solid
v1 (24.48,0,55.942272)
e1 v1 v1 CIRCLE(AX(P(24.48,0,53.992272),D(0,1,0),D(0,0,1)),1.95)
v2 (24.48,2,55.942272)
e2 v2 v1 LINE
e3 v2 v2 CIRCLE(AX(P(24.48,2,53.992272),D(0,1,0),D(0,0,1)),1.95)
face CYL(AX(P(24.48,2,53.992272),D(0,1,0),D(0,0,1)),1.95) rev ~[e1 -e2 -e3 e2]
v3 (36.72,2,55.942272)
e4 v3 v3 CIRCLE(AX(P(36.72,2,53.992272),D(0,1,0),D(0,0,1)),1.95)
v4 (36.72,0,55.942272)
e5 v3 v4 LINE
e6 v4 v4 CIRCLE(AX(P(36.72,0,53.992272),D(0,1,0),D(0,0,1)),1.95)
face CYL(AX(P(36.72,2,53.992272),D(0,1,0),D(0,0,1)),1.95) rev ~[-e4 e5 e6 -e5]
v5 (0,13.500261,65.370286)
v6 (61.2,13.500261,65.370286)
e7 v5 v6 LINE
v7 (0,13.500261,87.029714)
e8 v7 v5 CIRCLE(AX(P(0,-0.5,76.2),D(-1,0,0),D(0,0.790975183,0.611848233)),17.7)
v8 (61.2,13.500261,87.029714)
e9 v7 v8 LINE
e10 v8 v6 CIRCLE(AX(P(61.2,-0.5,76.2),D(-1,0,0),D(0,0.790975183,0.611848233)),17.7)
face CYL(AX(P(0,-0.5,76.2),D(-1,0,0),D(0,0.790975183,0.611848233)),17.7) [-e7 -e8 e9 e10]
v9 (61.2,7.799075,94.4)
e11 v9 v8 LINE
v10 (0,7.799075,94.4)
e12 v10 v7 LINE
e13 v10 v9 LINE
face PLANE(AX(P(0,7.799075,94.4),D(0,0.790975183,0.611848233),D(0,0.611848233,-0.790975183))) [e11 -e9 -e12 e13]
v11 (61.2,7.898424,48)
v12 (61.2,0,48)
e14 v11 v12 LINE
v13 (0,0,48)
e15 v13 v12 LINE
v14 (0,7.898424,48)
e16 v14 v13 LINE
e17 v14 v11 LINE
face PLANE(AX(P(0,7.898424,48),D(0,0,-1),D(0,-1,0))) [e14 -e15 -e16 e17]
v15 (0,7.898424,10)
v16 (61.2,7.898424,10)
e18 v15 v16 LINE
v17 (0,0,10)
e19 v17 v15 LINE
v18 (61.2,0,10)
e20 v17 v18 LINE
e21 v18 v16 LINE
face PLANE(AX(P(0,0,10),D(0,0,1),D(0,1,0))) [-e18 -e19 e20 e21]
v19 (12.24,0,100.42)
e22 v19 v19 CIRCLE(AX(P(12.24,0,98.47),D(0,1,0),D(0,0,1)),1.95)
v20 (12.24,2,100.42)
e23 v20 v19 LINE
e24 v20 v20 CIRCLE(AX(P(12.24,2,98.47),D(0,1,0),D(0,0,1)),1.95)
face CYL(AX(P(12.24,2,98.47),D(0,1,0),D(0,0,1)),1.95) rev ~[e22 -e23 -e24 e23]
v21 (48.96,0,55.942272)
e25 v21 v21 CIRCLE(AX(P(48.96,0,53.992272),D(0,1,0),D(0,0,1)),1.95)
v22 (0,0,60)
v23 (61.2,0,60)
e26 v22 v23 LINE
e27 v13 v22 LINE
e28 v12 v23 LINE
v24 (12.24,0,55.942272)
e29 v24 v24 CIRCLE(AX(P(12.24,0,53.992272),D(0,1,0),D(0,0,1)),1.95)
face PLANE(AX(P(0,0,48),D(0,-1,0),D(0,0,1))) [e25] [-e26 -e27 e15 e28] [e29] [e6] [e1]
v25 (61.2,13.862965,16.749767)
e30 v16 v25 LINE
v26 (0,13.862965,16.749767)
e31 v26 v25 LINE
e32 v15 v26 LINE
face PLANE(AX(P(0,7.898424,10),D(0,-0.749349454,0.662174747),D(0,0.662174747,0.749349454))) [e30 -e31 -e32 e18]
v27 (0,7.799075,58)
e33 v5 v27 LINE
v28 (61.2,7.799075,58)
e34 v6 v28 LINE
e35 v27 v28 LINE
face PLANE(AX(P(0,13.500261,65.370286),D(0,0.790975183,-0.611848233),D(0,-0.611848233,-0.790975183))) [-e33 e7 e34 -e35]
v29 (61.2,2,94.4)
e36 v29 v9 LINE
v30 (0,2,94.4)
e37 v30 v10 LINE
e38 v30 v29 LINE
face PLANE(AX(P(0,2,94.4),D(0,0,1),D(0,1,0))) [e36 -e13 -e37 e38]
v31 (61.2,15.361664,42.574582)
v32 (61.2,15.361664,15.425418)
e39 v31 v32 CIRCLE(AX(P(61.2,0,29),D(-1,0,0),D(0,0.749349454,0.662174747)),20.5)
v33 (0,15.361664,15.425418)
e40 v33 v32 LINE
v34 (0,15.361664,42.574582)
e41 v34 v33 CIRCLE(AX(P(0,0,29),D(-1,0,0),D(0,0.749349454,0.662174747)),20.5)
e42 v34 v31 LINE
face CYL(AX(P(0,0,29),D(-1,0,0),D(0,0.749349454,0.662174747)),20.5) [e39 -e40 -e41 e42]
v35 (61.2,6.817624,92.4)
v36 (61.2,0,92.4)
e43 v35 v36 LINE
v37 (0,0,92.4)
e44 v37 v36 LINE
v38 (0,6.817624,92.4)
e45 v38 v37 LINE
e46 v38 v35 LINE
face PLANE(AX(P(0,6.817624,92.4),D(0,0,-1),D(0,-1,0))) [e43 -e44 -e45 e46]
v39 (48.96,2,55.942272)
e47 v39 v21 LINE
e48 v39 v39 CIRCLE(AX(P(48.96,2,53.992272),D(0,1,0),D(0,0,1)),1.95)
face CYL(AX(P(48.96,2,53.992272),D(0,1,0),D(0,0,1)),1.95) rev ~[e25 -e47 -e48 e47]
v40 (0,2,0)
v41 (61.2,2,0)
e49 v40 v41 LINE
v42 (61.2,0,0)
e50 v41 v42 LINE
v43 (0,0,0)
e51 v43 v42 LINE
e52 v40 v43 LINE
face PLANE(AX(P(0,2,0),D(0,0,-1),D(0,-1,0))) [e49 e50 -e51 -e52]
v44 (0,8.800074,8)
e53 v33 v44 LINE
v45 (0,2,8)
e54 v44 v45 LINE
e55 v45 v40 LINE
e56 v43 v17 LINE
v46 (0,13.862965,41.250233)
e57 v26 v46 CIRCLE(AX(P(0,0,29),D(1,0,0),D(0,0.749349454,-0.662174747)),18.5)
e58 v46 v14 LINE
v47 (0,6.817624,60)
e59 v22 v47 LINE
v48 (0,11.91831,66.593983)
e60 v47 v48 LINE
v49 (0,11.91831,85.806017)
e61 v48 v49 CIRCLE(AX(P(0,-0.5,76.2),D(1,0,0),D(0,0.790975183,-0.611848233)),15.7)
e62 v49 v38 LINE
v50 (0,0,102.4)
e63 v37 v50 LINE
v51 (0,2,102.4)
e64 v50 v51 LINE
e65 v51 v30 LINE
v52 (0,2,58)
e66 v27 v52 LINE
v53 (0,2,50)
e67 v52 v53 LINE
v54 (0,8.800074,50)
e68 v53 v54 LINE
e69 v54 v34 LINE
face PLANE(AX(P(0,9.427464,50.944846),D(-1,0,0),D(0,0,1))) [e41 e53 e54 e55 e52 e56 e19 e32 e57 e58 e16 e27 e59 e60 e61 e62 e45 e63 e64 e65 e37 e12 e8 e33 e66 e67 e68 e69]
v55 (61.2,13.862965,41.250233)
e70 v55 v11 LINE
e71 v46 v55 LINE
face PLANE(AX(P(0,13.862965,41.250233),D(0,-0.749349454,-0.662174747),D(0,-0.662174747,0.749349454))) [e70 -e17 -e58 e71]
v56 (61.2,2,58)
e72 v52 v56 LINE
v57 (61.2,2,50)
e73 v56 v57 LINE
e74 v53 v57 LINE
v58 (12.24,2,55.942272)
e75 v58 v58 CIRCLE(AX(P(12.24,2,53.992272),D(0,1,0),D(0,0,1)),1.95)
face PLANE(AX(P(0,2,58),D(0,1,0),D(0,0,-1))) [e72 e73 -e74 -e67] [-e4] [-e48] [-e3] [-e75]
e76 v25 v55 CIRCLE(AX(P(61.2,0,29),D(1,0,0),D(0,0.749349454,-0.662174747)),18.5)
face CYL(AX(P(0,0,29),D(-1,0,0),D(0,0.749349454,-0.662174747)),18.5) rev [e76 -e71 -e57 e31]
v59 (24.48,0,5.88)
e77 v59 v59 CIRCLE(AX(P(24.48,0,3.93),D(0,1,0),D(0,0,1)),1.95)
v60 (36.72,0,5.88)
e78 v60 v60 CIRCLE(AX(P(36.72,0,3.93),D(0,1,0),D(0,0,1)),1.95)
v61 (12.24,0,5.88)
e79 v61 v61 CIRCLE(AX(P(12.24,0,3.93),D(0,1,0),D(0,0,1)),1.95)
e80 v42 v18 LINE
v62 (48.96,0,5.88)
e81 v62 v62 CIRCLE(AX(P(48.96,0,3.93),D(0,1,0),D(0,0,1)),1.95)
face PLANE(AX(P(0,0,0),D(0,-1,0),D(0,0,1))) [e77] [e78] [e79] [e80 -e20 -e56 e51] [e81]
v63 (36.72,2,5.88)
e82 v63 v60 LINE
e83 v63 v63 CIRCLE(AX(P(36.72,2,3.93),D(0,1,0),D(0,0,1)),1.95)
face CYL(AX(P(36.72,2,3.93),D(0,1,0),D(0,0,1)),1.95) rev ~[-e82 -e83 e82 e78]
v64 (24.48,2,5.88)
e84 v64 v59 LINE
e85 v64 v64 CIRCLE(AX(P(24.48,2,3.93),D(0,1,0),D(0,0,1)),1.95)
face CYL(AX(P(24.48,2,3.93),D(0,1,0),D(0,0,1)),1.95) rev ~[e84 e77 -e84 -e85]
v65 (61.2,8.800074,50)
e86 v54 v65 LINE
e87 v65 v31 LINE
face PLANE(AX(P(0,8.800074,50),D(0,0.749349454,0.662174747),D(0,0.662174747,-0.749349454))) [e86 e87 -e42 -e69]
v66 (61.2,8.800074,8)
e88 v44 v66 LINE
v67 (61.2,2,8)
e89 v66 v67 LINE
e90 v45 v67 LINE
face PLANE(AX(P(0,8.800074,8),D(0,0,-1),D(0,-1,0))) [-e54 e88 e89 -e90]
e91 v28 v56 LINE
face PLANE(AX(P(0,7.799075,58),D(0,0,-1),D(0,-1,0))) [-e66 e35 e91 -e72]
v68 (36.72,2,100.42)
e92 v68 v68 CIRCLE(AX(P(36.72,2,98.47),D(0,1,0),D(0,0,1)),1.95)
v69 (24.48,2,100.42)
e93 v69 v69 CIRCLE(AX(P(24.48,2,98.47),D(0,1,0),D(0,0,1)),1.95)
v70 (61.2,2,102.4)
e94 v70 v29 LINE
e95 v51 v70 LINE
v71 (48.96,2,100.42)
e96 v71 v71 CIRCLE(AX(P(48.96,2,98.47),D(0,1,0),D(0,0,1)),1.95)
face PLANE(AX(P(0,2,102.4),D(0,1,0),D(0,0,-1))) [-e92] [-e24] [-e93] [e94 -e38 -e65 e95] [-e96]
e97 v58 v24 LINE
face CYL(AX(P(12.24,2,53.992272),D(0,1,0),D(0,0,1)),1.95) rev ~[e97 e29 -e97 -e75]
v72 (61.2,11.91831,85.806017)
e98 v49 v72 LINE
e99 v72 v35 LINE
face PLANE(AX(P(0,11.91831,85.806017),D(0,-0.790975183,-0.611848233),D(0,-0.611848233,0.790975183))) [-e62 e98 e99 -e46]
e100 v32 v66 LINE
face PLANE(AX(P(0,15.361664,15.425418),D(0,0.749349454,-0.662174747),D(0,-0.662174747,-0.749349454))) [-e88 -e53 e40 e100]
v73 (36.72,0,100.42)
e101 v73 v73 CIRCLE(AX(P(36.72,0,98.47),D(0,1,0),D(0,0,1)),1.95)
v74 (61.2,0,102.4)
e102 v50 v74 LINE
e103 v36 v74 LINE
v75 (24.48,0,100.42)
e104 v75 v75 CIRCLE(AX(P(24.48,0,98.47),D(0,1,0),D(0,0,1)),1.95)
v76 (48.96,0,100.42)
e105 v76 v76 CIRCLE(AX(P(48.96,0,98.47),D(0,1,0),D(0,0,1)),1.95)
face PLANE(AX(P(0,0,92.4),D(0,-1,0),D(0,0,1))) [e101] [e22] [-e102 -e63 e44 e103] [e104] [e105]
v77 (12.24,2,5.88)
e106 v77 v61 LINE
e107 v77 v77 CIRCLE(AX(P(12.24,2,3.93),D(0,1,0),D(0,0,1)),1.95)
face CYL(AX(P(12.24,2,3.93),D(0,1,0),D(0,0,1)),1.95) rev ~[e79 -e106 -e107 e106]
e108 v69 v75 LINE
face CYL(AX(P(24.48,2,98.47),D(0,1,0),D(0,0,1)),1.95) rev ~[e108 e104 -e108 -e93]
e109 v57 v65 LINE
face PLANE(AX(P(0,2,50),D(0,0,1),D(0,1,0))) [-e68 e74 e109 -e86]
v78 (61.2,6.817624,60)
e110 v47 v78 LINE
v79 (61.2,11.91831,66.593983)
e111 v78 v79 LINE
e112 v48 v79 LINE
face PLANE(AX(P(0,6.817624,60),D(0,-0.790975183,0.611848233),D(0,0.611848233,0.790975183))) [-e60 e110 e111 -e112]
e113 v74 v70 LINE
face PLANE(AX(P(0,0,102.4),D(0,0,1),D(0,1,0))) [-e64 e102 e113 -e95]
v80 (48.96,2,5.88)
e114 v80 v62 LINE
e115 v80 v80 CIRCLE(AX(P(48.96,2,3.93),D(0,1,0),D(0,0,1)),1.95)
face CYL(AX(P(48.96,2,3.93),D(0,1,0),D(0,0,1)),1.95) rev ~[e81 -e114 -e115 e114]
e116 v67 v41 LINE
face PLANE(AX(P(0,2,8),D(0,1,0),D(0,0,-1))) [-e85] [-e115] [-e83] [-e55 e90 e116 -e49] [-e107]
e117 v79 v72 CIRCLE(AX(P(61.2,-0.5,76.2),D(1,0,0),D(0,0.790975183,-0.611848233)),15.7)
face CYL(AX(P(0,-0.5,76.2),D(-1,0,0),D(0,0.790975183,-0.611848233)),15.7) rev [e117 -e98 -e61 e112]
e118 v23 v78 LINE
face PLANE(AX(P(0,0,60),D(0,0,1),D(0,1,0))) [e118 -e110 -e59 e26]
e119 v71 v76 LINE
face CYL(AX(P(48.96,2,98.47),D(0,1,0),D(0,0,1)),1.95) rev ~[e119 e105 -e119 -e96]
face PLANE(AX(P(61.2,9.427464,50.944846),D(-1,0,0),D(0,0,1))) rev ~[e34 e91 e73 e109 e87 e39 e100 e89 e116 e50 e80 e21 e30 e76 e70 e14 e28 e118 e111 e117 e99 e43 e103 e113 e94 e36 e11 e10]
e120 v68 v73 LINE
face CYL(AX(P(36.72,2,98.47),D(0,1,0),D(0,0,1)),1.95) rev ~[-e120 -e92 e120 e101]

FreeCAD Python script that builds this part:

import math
import FreeCAD as App
import Part
import Sketcher
from FreeCAD import Vector

doc = App.newDocument("Part")
body = doc.addObject("PartDesign::Body", "Body")

# Sketch on YZ plane
sketch1 = body.newObject("Sketcher::SketchObject", "Sketch")
sketch1.AttachmentSupport = (doc.getObject("YZ_Plane"), [""])
sketch1.MapMode = "FlatFace"
sketch1.addGeometry(Part.LineSegment(Vector(0, 10, 0), Vector(0, 0, 0)), False)
sketch1.addGeometry(Part.LineSegment(Vector(0, 0, 0), Vector(2, 0, 0)), False)
sketch1.addGeometry(Part.LineSegment(Vector(2, 0, 0), Vector(2, 8, 0)), False)
sketch1.addGeometry(Part.LineSegment(Vector(2, 8, 0), Vector(8.8, 8, 0)), False)
sketch1.addGeometry(Part.LineSegment(Vector(8.8, 8, 0), Vector(15.4, 15.4, 0)), False)
sketch1.addGeometry(Part.ArcOfCircle(Part.Circle(Vector(0, 29, 0), Vector(0, 0, 1), 20.5), math.radians(-41), math.radians(41)), False)
sketch1.addGeometry(Part.LineSegment(Vector(15.4, 42.6, 0), Vector(8.8, 50, 0)), False)
sketch1.addGeometry(Part.LineSegment(Vector(8.8, 50, 0), Vector(2, 50, 0)), False)
sketch1.addGeometry(Part.LineSegment(Vector(2, 50, 0), Vector(2, 58, 0)), False)
sketch1.addGeometry(Part.LineSegment(Vector(2, 58, 0), Vector(7.8, 58, 0)), False)
sketch1.addGeometry(Part.LineSegment(Vector(7.8, 58, 0), Vector(13.5, 65.4, 0)), False)
sketch1.addGeometry(Part.ArcOfCircle(Part.Circle(Vector(-0.5, 76.2, 0), Vector(0, 0, 1), 17.7), math.radians(-38), math.radians(38)), False)
sketch1.addGeometry(Part.LineSegment(Vector(13.5, 87, 0), Vector(7.8, 94.4, 0)), False)
sketch1.addGeometry(Part.LineSegment(Vector(7.8, 94.4, 0), Vector(2, 94.4, 0)), False)
sketch1.addGeometry(Part.LineSegment(Vector(2, 94.4, 0), Vector(2, 102.4, 0)), False)
sketch1.addGeometry(Part.LineSegment(Vector(2, 102.4, 0), Vector(0, 102.4, 0)), False)
sketch1.addGeometry(Part.LineSegment(Vector(0, 102.4, 0), Vector(0, 92.4, 0)), False)
sketch1.addGeometry(Part.LineSegment(Vector(0, 92.4, 0), Vector(6.8, 92.4, 0)), False)
sketch1.addGeometry(Part.LineSegment(Vector(6.8, 92.4, 0), Vector(11.9, 85.8, 0)), False)
sketch1.addGeometry(Part.ArcOfCircle(Part.Circle(Vector(-0.5, 76.2, 0), Vector(0, 0, 1), 15.7), math.radians(-38), math.radians(38)), False)
sketch1.addGeometry(Part.LineSegment(Vector(11.9, 66.6, 0), Vector(6.8, 60, 0)), False)
sketch1.addGeometry(Part.LineSegment(Vector(6.8, 60, 0), Vector(0, 60, 0)), False)
sketch1.addGeometry(Part.LineSegment(Vector(0, 60, 0), Vector(0, 48, 0)), False)
sketch1.addGeometry(Part.LineSegment(Vector(0, 48, 0), Vector(7.9, 48, 0)), False)
sketch1.addGeometry(Part.LineSegment(Vector(7.9, 48, 0), Vector(13.9, 41.3, 0)), False)
sketch1.addGeometry(Part.ArcOfCircle(Part.Circle(Vector(0, 29, 0), Vector(0, 0, 1), 18.5), math.radians(-41), math.radians(41)), False)
sketch1.addGeometry(Part.LineSegment(Vector(13.9, 16.7, 0), Vector(7.9, 10, 0)), False)
sketch1.addGeometry(Part.LineSegment(Vector(7.9, 10, 0), Vector(0, 10, 0)), False)
sketch1.addConstraint(Sketcher.Constraint("Coincident", 0, 2, 1, 1))
sketch1.addConstraint(Sketcher.Constraint("Coincident", 1, 2, 2, 1))
sketch1.addConstraint(Sketcher.Constraint("Coincident", 2, 2, 3, 1))
sketch1.addConstraint(Sketcher.Constraint("Coincident", 3, 2, 4, 1))
sketch1.addConstraint(Sketcher.Constraint("Tangent", 4, 2, 5, 1))
sketch1.addConstraint(Sketcher.Constraint("Tangent", 5, 2, 6, 1))
sketch1.addConstraint(Sketcher.Constraint("Coincident", 6, 2, 7, 1))
sketch1.addConstraint(Sketcher.Constraint("Coincident", 7, 2, 8, 1))
sketch1.addConstraint(Sketcher.Constraint("Coincident", 8, 2, 9, 1))
sketch1.addConstraint(Sketcher.Constraint("Coincident", 9, 2, 10, 1))
sketch1.addConstraint(Sketcher.Constraint("Tangent", 10, 2, 11, 1))
sketch1.addConstraint(Sketcher.Constraint("Tangent", 11, 2, 12, 1))
sketch1.addConstraint(Sketcher.Constraint("Coincident", 12, 2, 13, 1))
sketch1.addConstraint(Sketcher.Constraint("Coincident", 13, 2, 14, 1))
sketch1.addConstraint(Sketcher.Constraint("Coincident", 14, 2, 15, 1))
sketch1.addConstraint(Sketcher.Constraint("Coincident", 15, 2, 16, 1))
sketch1.addConstraint(Sketcher.Constraint("Coincident", 16, 2, 17, 1))
sketch1.addConstraint(Sketcher.Constraint("Coincident", 17, 2, 18, 1))
sketch1.addConstraint(Sketcher.Constraint("Tangent", 18, 2, 19, 2))
sketch1.addConstraint(Sketcher.Constraint("Tangent", 19, 1, 20, 1))
sketch1.addConstraint(Sketcher.Constraint("Coincident", 20, 2, 21, 1))
sketch1.addConstraint(Sketcher.Constraint("Coincident", 21, 2, 22, 1))
sketch1.addConstraint(Sketcher.Constraint("Coincident", 22, 2, 23, 1))
sketch1.addConstraint(Sketcher.Constraint("Coincident", 23, 2, 24, 1))
sketch1.addConstraint(Sketcher.Constraint("Tangent", 24, 2, 25, 2))
sketch1.addConstraint(Sketcher.Constraint("Tangent", 25, 1, 26, 1))
sketch1.addConstraint(Sketcher.Constraint("Coincident", 26, 2, 27, 1))
sketch1.addConstraint(Sketcher.Constraint("Coincident", 27, 2, 0, 1))
sketch1.addConstraint(Sketcher.Constraint("Vertical", 0))
sketch1.addConstraint(Sketcher.Constraint("Horizontal", 1))
sketch1.addConstraint(Sketcher.Constraint("Vertical", 2))
sketch1.addConstraint(Sketcher.Constraint("Horizontal", 3))
sketch1.addConstraint(Sketcher.Constraint("Horizontal", 7))
sketch1.addConstraint(Sketcher.Constraint("Vertical", 8))
sketch1.addConstraint(Sketcher.Constraint("Horizontal", 9))
sketch1.addConstraint(Sketcher.Constraint("Horizontal", 13))
sketch1.addConstraint(Sketcher.Constraint("Vertical", 14))
sketch1.addConstraint(Sketcher.Constraint("Horizontal", 15))
sketch1.addConstraint(Sketcher.Constraint("Vertical", 16))
sketch1.addConstraint(Sketcher.Constraint("Horizontal", 17))
sketch1.addConstraint(Sketcher.Constraint("Horizontal", 21))
sketch1.addConstraint(Sketcher.Constraint("Vertical", 22))
sketch1.addConstraint(Sketcher.Constraint("Horizontal", 23))
sketch1.addConstraint(Sketcher.Constraint("Horizontal", 27))
sketch1.addConstraint(Sketcher.Constraint("Coincident", 0, 2, -1, 1))
sketch1.addConstraint(Sketcher.Constraint("Coincident", 19, 3, 11, 3))
sketch1.addConstraint(Sketcher.Constraint("Coincident", 25, 3, 5, 3))
sketch1.addConstraint(Sketcher.Constraint("PointOnObject", 5, 3, -2))
sketch1.addConstraint(Sketcher.Constraint("PointOnObject", 15, 2, -2))
sketch1.addConstraint(Sketcher.Constraint("PointOnObject", 21, 2, -2))
sketch1.addConstraint(Sketcher.Constraint("Parallel", 12, 18))
sketch1.addConstraint(Sketcher.Constraint("Parallel", 10, 20))
sketch1.addConstraint(Sketcher.Constraint("Parallel", 6, 24))
sketch1.addConstraint(Sketcher.Constraint("Parallel", 4, 26))
sketch1.addConstraint(Sketcher.Constraint("Vertical", 4, 2, 5, 2))
sketch1.addConstraint(Sketcher.Constraint("Vertical", 3, 2, 6, 2))
sketch1.addConstraint(Sketcher.Constraint("Vertical", 2, 2, 7, 2))
sketch1.addConstraint(Sketcher.Constraint("Vertical", 10, 2, 11, 2))
sketch1.addConstraint(Sketcher.Constraint("Vertical", 9, 2, 12, 2))
sketch1.addConstraint(Sketcher.Constraint("Vertical", 8, 2, 13, 2))
sketch1.addConstraint(Sketcher.Constraint("Vertical", 17, 2, 20, 2))
sketch1.addConstraint(Sketcher.Constraint("Vertical", 23, 2, 26, 2))
sketch1.addConstraint(Sketcher.Constraint("Equal", 2, 8))
sketch1.addConstraint(Sketcher.Constraint("Equal", 8, 14))
sketch1.addConstraint(Sketcher.Constraint("Equal", 0, 16))
sketch1.addConstraint(Sketcher.Constraint("Radius", 5, 20.5))
sketch1.addConstraint(Sketcher.Constraint("Radius", 11, 17.7))
sketch1.addConstraint(Sketcher.Constraint("Radius", 19, 15.7))
sketch1.addConstraint(Sketcher.Constraint("Radius", 25, 18.5))
sketch1.addConstraint(Sketcher.Constraint("DistanceX", 1, 1, 1, 2, 2.0))
sketch1.addConstraint(Sketcher.Constraint("DistanceY", 0, 2, 0, 1, 10.0))
sketch1.addConstraint(Sketcher.Constraint("DistanceY", 2, 1, 2, 2, 8.0))
sketch1.addConstraint(Sketcher.Constraint("DistanceY", -1, 1, 5, 3, 29.0))
sketch1.addConstraint(Sketcher.Constraint("DistanceX", 11, 3, -1, 1, 0.5))
sketch1.addConstraint(Sketcher.Constraint("DistanceY", -1, 1, 11, 3, 76.2))
sketch1.addConstraint(Sketcher.Constraint("DistanceX", 9, 2, 6, 2, 1.000999))
sketch1.addConstraint(Sketcher.Constraint("DistanceX", 3, 1, 3, 2, 6.800074))
pad1 = body.newObject("PartDesign::Pad", "Pad")
pad1.Profile = sketch1
pad1.Length = 61.2

# Sketch on XZ plane
sketch2 = body.newObject("Sketcher::SketchObject", "Sketch001")
sketch2.AttachmentSupport = (doc.getObject("XZ_Plane"), [""])
sketch2.MapMode = "FlatFace"
sketch2.AttachmentOffset = App.Placement(Vector(0, 0, -2), App.Rotation())
sketch2.addGeometry(Part.Circle(Vector(12.2, 3.9, 0), Vector(0, 0, 1), 1.9), False)
sketch2.addGeometry(Part.Circle(Vector(24.5, 3.9, 0), Vector(0, 0, 1), 1.9), False)
sketch2.addGeometry(Part.Circle(Vector(36.7, 3.9, 0), Vector(0, 0, 1), 1.9), False)
sketch2.addGeometry(Part.Circle(Vector(49, 3.9, 0), Vector(0, 0, 1), 1.9), False)
sketch2.addGeometry(Part.Circle(Vector(12.2, 54, 0), Vector(0, 0, 1), 1.9), False)
sketch2.addGeometry(Part.Circle(Vector(24.5, 54, 0), Vector(0, 0, 1), 1.9), False)
sketch2.addGeometry(Part.Circle(Vector(36.7, 54, 0), Vector(0, 0, 1), 1.9), False)
sketch2.addGeometry(Part.Circle(Vector(49, 54, 0), Vector(0, 0, 1), 1.9), False)
sketch2.addGeometry(Part.Circle(Vector(12.2, 98.5, 0), Vector(0, 0, 1), 1.9), False)
sketch2.addGeometry(Part.Circle(Vector(24.5, 98.5, 0), Vector(0, 0, 1), 1.9), False)
sketch2.addGeometry(Part.Circle(Vector(36.7, 98.5, 0), Vector(0, 0, 1), 1.9), False)
sketch2.addGeometry(Part.Circle(Vector(49, 98.5, 0), Vector(0, 0, 1), 1.9), False)
sketch2.addConstraint(Sketcher.Constraint("Equal", 0, 1))
sketch2.addConstraint(Sketcher.Constraint("Equal", 1, 2))
sketch2.addConstraint(Sketcher.Constraint("Equal", 2, 3))
sketch2.addConstraint(Sketcher.Constraint("Equal", 3, 4))
sketch2.addConstraint(Sketcher.Constraint("Equal", 4, 5))
sketch2.addConstraint(Sketcher.Constraint("Equal", 5, 6))
sketch2.addConstraint(Sketcher.Constraint("Equal", 6, 7))
sketch2.addConstraint(Sketcher.Constraint("Equal", 7, 8))
sketch2.addConstraint(Sketcher.Constraint("Equal", 8, 9))
sketch2.addConstraint(Sketcher.Constraint("Equal", 9, 10))
sketch2.addConstraint(Sketcher.Constraint("Equal", 10, 11))
sketch2.addConstraint(Sketcher.Constraint("Horizontal", 0, 3, 1, 3))
sketch2.addConstraint(Sketcher.Constraint("Horizontal", 1, 3, 2, 3))
sketch2.addConstraint(Sketcher.Constraint("Horizontal", 2, 3, 3, 3))
sketch2.addConstraint(Sketcher.Constraint("Horizontal", 4, 3, 5, 3))
sketch2.addConstraint(Sketcher.Constraint("Horizontal", 5, 3, 6, 3))
sketch2.addConstraint(Sketcher.Constraint("Horizontal", 6, 3, 7, 3))
sketch2.addConstraint(Sketcher.Constraint("Horizontal", 8, 3, 9, 3))
sketch2.addConstraint(Sketcher.Constraint("Horizontal", 9, 3, 10, 3))
sketch2.addConstraint(Sketcher.Constraint("Horizontal", 10, 3, 11, 3))
sketch2.addConstraint(Sketcher.Constraint("Vertical", 0, 3, 4, 3))
sketch2.addConstraint(Sketcher.Constraint("Vertical", 1, 3, 5, 3))
sketch2.addConstraint(Sketcher.Constraint("Vertical", 2, 3, 6, 3))
sketch2.addConstraint(Sketcher.Constraint("Vertical", 3, 3, 7, 3))
sketch2.addConstraint(Sketcher.Constraint("Vertical", 4, 3, 8, 3))
sketch2.addConstraint(Sketcher.Constraint("Vertical", 5, 3, 9, 3))
sketch2.addConstraint(Sketcher.Constraint("Vertical", 6, 3, 10, 3))
sketch2.addConstraint(Sketcher.Constraint("Vertical", 7, 3, 11, 3))
sketch2.addConstraint(Sketcher.Constraint("Diameter", 0, 3.9))
sketch2.addConstraint(Sketcher.Constraint("DistanceX", -1, 1, 0, 3, 12.24))
sketch2.addConstraint(Sketcher.Constraint("DistanceY", -1, 1, 0, 3, 3.93))
sketch2.addConstraint(Sketcher.Constraint("DistanceX", -1, 1, 1, 3, 24.48))
sketch2.addConstraint(Sketcher.Constraint("DistanceX", -1, 1, 2, 3, 36.72))
sketch2.addConstraint(Sketcher.Constraint("DistanceX", -1, 1, 3, 3, 48.96))
sketch2.addConstraint(Sketcher.Constraint("DistanceY", -1, 1, 8, 3, 98.47))
sketch2.addConstraint(Sketcher.Constraint("DistanceY", -1, 1, 4, 3, 53.992272))
pocket1 = body.newObject("PartDesign::Pocket", "Pocket")
pocket1.Profile = sketch2
pocket1.Length = 2
pocket1.Reversed = True

doc.recompute()
